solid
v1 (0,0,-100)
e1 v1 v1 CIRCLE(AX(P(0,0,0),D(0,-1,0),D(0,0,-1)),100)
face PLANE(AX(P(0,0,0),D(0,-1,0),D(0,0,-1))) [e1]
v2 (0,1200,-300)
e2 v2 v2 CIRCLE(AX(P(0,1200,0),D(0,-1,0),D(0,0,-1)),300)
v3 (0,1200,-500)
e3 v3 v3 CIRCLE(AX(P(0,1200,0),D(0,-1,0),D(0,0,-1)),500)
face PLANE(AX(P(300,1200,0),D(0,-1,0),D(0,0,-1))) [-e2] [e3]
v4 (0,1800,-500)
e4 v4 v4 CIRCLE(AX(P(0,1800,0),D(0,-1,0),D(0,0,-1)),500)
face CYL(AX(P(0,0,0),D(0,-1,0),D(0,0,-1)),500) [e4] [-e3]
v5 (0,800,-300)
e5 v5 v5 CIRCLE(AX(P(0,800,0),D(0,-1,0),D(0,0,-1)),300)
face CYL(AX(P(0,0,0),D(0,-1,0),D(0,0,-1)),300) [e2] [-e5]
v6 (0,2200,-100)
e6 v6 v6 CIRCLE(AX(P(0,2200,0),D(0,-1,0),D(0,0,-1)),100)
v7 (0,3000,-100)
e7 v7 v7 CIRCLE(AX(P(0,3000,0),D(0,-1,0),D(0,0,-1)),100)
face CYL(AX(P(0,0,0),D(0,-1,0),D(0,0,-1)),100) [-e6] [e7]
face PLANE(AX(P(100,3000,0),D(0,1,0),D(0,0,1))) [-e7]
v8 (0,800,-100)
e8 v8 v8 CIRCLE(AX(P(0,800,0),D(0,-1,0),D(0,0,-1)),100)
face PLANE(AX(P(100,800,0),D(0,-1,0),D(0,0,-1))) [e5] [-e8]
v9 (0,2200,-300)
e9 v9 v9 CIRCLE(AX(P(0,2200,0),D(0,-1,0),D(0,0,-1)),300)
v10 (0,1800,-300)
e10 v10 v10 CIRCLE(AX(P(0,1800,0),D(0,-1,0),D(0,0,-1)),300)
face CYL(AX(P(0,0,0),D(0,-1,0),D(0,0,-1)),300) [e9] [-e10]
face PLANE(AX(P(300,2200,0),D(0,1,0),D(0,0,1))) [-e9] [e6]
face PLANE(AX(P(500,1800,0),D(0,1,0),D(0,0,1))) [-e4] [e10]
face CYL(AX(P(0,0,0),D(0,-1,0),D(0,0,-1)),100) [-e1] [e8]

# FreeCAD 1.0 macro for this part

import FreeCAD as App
import Part
import Sketcher

V = App.Vector
Q = App.Units.Quantity

doc = App.newDocument("Part")
body = doc.addObject("PartDesign::Body", "Body")

# Sketch on XY plane
sketch1 = body.newObject("Sketcher::SketchObject", "Sketch")
sketch1.AttachmentSupport = (doc.getObject("XY_Plane"), [""])
sketch1.MapMode = "FlatFace"
sketch1.addGeometry(Part.LineSegment(V(0, 0, 0), V(100, 0, 0)), False)
sketch1.addGeometry(Part.LineSegment(V(100, 0, 0), V(100, 800, 0)), False)
sketch1.addGeometry(Part.LineSegment(V(100, 800, 0), V(300, 800, 0)), False)
sketch1.addGeometry(Part.LineSegment(V(300, 800, 0), V(300, 1200, 0)), False)
sketch1.addGeometry(Part.LineSegment(V(300, 1200, 0), V(500, 1200, 0)), False)
sketch1.addGeometry(Part.LineSegment(V(500, 1200, 0), V(500, 1800, 0)), False)
sketch1.addGeometry(Part.LineSegment(V(500, 1800, 0), V(300, 1800, 0)), False)
sketch1.addGeometry(Part.LineSegment(V(300, 1800, 0), V(300, 2200, 0)), False)
sketch1.addGeometry(Part.LineSegment(V(300, 2200, 0), V(100, 2200, 0)), False)
sketch1.addGeometry(Part.LineSegment(V(100, 2200, 0), V(100, 3000, 0)), False)
sketch1.addGeometry(Part.LineSegment(V(100, 3000, 0), V(0, 3000, 0)), False)
sketch1.addGeometry(Part.LineSegment(V(0, 3000, 0), V(0, 0, 0)), False)
sketch1.addConstraint(Sketcher.Constraint("Coincident", 0, 2, 1, 1))
sketch1.addConstraint(Sketcher.Constraint("Coincident", 1, 2, 2, 1))
sketch1.addConstraint(Sketcher.Constraint("Coincident", 2, 2, 3, 1))
sketch1.addConstraint(Sketcher.Constraint("Coincident", 3, 2, 4, 1))
sketch1.addConstraint(Sketcher.Constraint("Coincident", 4, 2, 5, 1))
sketch1.addConstraint(Sketcher.Constraint("Coincident", 5, 2, 6, 1))
sketch1.addConstraint(Sketcher.Constraint("Coincident", 6, 2, 7, 1))
sketch1.addConstraint(Sketcher.Constraint("Coincident", 7, 2, 8, 1))
sketch1.addConstraint(Sketcher.Constraint("Coincident", 8, 2, 9, 1))
sketch1.addConstraint(Sketcher.Constraint("Coincident", 9, 2, 10, 1))
sketch1.addConstraint(Sketcher.Constraint("Coincident", 10, 2, 11, 1))
sketch1.addConstraint(Sketcher.Constraint("Coincident", 11, 2, 0, 1))
sketch1.addConstraint(Sketcher.Constraint("Horizontal", 0))
sketch1.addConstraint(Sketcher.Constraint("Vertical", 1))
sketch1.addConstraint(Sketcher.Constraint("Horizontal", 2))
sketch1.addConstraint(Sketcher.Constraint("Vertical", 3))
sketch1.addConstraint(Sketcher.Constraint("Horizontal", 4))
sketch1.addConstraint(Sketcher.Constraint("Vertical", 5))
sketch1.addConstraint(Sketcher.Constraint("Horizontal", 6))
sketch1.addConstraint(Sketcher.Constraint("Vertical", 7))
sketch1.addConstraint(Sketcher.Constraint("Horizontal", 8))
sketch1.addConstraint(Sketcher.Constraint("Vertical", 9))
sketch1.addConstraint(Sketcher.Constraint("Horizontal", 10))
sketch1.addConstraint(Sketcher.Constraint("Vertical", 11))
sketch1.addConstraint(Sketcher.Constraint("Coincident", 11, 2, -1, 1))
sketch1.addConstraint(Sketcher.Constraint("Vertical", 3, 2, 6, 2))
sketch1.addConstraint(Sketcher.Constraint("Vertical", 1, 2, 8, 2))
sketch1.addConstraint(Sketcher.Constraint("Equal", 2, 4))
sketch1.addConstraint(Sketcher.Constraint("Equal", 3, 7))
sketch1.addConstraint(Sketcher.Constraint("Equal", 1, 9))
sketch1.addConstraint(Sketcher.Constraint("DistanceX", 0, 1, 0, 2, Q("100 mm")))
sketch1.addConstraint(Sketcher.Constraint("DistanceX", 2, 1, 2, 2, Q("200 mm")))
sketch1.addConstraint(Sketcher.Constraint("DistanceY", 1, 1, 1, 2, Q("800 mm")))
sketch1.addConstraint(Sketcher.Constraint("DistanceY", 3, 1, 3, 2, Q("400 mm")))
sketch1.addConstraint(Sketcher.Constraint("DistanceY", 5, 1, 5, 2, Q("600 mm")))
revolution = body.newObject("PartDesign::Revolution", "Revolution")
revolution.Profile = sketch1
revolution.ReferenceAxis = (sketch1, ["V_Axis"])
revolution.Angle = 360

doc.recompute()
